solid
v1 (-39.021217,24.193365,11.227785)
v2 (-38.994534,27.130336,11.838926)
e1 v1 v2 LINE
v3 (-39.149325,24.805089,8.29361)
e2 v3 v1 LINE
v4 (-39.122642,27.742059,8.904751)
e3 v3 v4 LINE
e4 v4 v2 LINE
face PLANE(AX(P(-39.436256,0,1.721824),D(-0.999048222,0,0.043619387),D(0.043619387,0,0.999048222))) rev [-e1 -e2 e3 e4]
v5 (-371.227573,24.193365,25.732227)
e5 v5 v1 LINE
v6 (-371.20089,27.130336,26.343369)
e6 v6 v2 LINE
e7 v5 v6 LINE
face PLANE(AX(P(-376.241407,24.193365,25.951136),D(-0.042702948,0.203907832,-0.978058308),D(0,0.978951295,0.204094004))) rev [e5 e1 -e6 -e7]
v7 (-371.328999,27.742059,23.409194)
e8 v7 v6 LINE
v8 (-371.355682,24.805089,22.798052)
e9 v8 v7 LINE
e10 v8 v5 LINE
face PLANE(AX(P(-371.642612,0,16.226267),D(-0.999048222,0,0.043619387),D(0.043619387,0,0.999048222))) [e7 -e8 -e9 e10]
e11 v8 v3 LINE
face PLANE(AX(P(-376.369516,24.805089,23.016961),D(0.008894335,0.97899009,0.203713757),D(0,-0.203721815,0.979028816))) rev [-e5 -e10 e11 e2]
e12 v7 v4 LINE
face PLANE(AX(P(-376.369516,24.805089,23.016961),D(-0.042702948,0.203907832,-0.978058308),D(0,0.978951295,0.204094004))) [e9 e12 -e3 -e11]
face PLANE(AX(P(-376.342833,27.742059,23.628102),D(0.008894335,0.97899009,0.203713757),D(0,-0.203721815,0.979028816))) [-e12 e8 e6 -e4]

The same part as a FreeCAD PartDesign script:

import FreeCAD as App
import Part
import Sketcher
Q = App.Units.Quantity


def add_polygon(sketch, points):
    """Adds a closed chain of lines whose ends are joined by coincident constraints."""
    first, n = sketch.GeometryCount, len(points)
    for a, b in zip(points, points[1:] + points[:1]):
        sketch.addGeometry(Part.LineSegment(App.Vector(*a, 0), App.Vector(*b, 0)), False)
    for i in range(n):
        sketch.addConstraint(Sketcher.Constraint("Coincident", first + i, 2, first + (i + 1) % n, 1))

doc = App.newDocument("Part")
body = doc.addObject("PartDesign::Body", "Body")

sketch1 = doc.addObject("Sketcher::SketchObject", "Sketch")
body.addObject(sketch1)
sketch1.Placement = App.Placement(App.Vector(-39.436256, 0, 1.721824), App.Rotation(App.Vector(0.043619387, 0, 0.999048222), App.Vector(0, 1.000000001, 0), App.Vector(-0.999048222, 0, 0.043619387), "ZXY"))
add_polygon(sketch1, [(7.2, 27.7), (6.6, 24.8), (9.5, 24.2), (10.1, 27.1)])
sketch1.addConstraint([
    Sketcher.Constraint("Perpendicular", 0, 1),
    Sketcher.Constraint("Perpendicular", 1, 2),
    Sketcher.Constraint("Perpendicular", 2, 3),
    Sketcher.Constraint("Equal", 0, 1),
    Sketcher.Constraint("Distance", 0, Q("3 mm")),
    Sketcher.Constraint("DistanceY", -1, 1, 0, 2, Q("24.805089 mm")),
    Sketcher.Constraint("DistanceX", -1, 1, 2, 2, Q("10.12674 mm")),
    Sketcher.Constraint("DistanceX", -1, 1, 3, 2, Q("7.18977 mm")),
])
pad1 = doc.addObject("PartDesign::Pad", "Pad")
body.addObject(pad1)
pad1.Profile = sketch1
pad1.Length = 332.522845

doc.recompute()
